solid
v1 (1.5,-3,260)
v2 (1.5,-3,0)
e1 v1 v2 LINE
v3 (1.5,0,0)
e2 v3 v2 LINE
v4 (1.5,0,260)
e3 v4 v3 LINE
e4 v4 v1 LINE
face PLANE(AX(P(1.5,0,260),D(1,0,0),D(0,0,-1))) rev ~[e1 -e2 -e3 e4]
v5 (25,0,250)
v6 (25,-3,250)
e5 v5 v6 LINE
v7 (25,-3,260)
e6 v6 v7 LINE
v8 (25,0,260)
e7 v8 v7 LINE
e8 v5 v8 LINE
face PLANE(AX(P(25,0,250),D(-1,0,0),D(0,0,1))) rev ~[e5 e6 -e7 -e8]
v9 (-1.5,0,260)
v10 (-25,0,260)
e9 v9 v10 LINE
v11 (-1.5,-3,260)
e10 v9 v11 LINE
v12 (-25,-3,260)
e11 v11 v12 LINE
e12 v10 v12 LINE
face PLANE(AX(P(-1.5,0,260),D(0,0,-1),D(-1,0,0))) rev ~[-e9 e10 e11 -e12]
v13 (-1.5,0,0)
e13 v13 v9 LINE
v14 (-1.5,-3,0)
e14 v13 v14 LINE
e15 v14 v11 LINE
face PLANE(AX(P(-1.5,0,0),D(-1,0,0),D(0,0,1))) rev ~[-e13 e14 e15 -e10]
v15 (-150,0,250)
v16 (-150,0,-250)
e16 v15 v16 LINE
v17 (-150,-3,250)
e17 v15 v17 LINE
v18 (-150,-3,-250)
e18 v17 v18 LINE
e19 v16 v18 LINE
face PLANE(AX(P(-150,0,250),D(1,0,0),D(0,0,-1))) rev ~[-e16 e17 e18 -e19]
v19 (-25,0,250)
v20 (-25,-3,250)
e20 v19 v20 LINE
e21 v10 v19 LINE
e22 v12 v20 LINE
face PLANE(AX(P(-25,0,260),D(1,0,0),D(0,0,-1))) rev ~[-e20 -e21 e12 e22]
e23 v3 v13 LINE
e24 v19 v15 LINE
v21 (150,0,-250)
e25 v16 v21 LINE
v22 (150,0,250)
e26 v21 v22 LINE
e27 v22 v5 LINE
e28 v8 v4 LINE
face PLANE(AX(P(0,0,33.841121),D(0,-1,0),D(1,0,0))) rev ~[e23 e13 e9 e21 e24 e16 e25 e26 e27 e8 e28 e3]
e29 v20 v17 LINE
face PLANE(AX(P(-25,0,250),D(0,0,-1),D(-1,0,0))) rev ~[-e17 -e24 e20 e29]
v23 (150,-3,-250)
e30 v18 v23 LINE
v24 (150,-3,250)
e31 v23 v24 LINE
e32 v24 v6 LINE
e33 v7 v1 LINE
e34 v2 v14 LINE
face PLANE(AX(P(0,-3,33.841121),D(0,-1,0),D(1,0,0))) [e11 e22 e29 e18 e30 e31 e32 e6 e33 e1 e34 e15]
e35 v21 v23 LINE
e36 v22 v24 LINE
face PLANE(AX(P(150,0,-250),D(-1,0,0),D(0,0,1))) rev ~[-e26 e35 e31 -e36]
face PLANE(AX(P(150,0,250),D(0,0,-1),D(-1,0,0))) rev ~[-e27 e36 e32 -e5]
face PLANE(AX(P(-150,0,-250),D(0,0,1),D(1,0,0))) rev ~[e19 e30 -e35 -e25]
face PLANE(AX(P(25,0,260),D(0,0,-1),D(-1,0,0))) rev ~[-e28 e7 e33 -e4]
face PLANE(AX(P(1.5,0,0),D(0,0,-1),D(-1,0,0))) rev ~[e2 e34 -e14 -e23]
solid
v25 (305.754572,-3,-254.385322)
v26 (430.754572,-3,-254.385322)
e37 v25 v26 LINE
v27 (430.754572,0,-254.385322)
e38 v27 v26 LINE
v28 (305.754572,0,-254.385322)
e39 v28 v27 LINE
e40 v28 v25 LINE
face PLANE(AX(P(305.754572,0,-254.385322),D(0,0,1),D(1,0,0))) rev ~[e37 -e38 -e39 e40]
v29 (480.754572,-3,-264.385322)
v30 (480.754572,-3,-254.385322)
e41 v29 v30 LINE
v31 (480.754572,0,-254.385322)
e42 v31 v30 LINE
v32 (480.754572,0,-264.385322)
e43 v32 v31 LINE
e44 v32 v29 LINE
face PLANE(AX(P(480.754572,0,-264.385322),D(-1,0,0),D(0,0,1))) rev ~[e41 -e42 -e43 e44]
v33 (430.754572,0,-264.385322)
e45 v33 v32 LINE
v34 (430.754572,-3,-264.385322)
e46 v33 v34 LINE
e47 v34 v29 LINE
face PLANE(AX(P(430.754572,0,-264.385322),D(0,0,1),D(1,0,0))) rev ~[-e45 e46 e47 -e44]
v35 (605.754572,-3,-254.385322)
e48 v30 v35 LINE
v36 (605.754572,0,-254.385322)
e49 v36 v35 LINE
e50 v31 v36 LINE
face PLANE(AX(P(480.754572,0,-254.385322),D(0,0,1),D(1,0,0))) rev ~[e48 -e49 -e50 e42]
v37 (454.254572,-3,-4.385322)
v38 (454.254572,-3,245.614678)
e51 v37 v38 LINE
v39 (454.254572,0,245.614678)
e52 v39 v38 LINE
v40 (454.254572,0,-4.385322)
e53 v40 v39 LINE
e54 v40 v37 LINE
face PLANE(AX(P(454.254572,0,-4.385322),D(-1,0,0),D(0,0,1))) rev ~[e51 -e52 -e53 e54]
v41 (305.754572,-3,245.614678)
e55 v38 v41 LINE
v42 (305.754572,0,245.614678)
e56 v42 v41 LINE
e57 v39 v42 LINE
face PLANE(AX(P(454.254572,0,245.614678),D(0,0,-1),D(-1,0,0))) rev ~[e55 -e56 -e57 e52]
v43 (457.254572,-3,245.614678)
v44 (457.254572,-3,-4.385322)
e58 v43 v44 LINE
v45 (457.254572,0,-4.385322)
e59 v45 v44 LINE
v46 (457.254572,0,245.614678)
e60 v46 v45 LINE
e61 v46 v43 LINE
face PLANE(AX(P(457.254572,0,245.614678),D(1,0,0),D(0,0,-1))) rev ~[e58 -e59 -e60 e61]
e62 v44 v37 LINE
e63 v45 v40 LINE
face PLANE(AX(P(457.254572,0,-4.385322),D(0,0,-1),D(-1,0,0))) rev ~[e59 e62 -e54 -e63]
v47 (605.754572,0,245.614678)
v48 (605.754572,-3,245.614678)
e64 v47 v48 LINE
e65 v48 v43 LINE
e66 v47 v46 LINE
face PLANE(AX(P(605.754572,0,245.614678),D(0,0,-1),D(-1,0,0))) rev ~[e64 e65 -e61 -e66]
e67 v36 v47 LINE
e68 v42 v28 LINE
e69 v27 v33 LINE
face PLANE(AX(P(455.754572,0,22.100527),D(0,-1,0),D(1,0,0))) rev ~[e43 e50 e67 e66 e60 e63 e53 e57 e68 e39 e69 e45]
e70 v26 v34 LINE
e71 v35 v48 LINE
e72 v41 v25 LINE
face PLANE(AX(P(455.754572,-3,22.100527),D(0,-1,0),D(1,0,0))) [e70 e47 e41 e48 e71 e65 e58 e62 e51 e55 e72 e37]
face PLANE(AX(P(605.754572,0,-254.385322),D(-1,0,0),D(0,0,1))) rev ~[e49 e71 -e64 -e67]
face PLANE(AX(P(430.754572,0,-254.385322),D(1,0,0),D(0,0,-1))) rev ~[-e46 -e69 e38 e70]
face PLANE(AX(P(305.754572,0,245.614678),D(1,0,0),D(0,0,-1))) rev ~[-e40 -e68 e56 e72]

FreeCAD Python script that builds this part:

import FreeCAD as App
import Part
import Sketcher
from FreeCAD import Vector
Q = App.Units.Quantity

doc = App.newDocument("Part")
body = doc.addObject("PartDesign::Body", "Body")
body.AllowCompound = True

# Sketch on XZ plane
sketch1 = body.newObject("Sketcher::SketchObject", "Sketch")
sketch1.AttachmentSupport = (doc.getObject("XZ_Plane"), [""])
sketch1.MapMode = "FlatFace"
sketch1.addGeometry([
    Part.LineSegment(Vector(-150, 250, 0), Vector(-150, -250, 0)),  # 0
    Part.LineSegment(Vector(-150, -250, 0), Vector(150, -250, 0)),  # 1
    Part.LineSegment(Vector(150, -250, 0), Vector(150, 250, 0)),  # 2
    Part.LineSegment(Vector(150, 250, 0), Vector(25, 250, 0)),  # 3
    Part.LineSegment(Vector(25, 250, 0), Vector(25, 260, 0)),  # 4
    Part.LineSegment(Vector(25, 260, 0), Vector(1.5, 260, 0)),  # 5
    Part.LineSegment(Vector(1.5, 260, 0), Vector(1.5, 0, 0)),  # 6
    Part.LineSegment(Vector(1.5, 0, 0), Vector(-1.5, 0, 0)),  # 7
    Part.LineSegment(Vector(-1.5, 0, 0), Vector(-1.5, 260, 0)),  # 8
    Part.LineSegment(Vector(-1.5, 260, 0), Vector(-25, 260, 0)),  # 9
    Part.LineSegment(Vector(-25, 260, 0), Vector(-25, 250, 0)),  # 10
    Part.LineSegment(Vector(-25, 250, 0), Vector(-150, 250, 0)),  # 11
    Part.LineSegment(Vector(305.8, 245.6, 0), Vector(305.8, -254.4, 0)),  # 12
    Part.LineSegment(Vector(305.8, -254.4, 0), Vector(430.8, -254.4, 0)),  # 13
    Part.LineSegment(Vector(430.8, -254.4, 0), Vector(430.8, -264.4, 0)),  # 14
    Part.LineSegment(Vector(430.8, -264.4, 0), Vector(480.8, -264.4, 0)),  # 15
    Part.LineSegment(Vector(480.8, -264.4, 0), Vector(480.8, -254.4, 0)),  # 16
    Part.LineSegment(Vector(480.8, -254.4, 0), Vector(605.8, -254.4, 0)),  # 17
    Part.LineSegment(Vector(605.8, -254.4, 0), Vector(605.8, 245.6, 0)),  # 18
    Part.LineSegment(Vector(605.8, 245.6, 0), Vector(457.3, 245.6, 0)),  # 19
    Part.LineSegment(Vector(457.3, 245.6, 0), Vector(457.3, -4.4, 0)),  # 20
    Part.LineSegment(Vector(457.3, -4.4, 0), Vector(454.3, -4.4, 0)),  # 21
    Part.LineSegment(Vector(454.3, -4.4, 0), Vector(454.3, 245.6, 0)),  # 22
    Part.LineSegment(Vector(454.3, 245.6, 0), Vector(305.8, 245.6, 0)),  # 23
], False)
sketch1.addConstraint([
    Sketcher.Constraint("Coincident", 0, 2, 1, 1),
    Sketcher.Constraint("Coincident", 1, 2, 2, 1),
    Sketcher.Constraint("Coincident", 2, 2, 3, 1),
    Sketcher.Constraint("Coincident", 3, 2, 4, 1),
    Sketcher.Constraint("Coincident", 4, 2, 5, 1),
    Sketcher.Constraint("Coincident", 5, 2, 6, 1),
    Sketcher.Constraint("Coincident", 6, 2, 7, 1),
    Sketcher.Constraint("Coincident", 7, 2, 8, 1),
    Sketcher.Constraint("Coincident", 8, 2, 9, 1),
    Sketcher.Constraint("Coincident", 9, 2, 10, 1),
    Sketcher.Constraint("Coincident", 10, 2, 11, 1),
    Sketcher.Constraint("Coincident", 11, 2, 0, 1),
    Sketcher.Constraint("Coincident", 12, 2, 13, 1),
    Sketcher.Constraint("Coincident", 13, 2, 14, 1),
    Sketcher.Constraint("Coincident", 14, 2, 15, 1),
    Sketcher.Constraint("Coincident", 15, 2, 16, 1),
    Sketcher.Constraint("Coincident", 16, 2, 17, 1),
    Sketcher.Constraint("Coincident", 17, 2, 18, 1),
    Sketcher.Constraint("Coincident", 18, 2, 19, 1),
    Sketcher.Constraint("Coincident", 19, 2, 20, 1),
    Sketcher.Constraint("Coincident", 20, 2, 21, 1),
    Sketcher.Constraint("Coincident", 21, 2, 22, 1),
    Sketcher.Constraint("Coincident", 22, 2, 23, 1),
    Sketcher.Constraint("Coincident", 23, 2, 12, 1),
    Sketcher.Constraint("Vertical", 0),
    Sketcher.Constraint("Horizontal", 1),
    Sketcher.Constraint("Vertical", 2),
    Sketcher.Constraint("Horizontal", 3),
    Sketcher.Constraint("Vertical", 4),
    Sketcher.Constraint("Horizontal", 5),
    Sketcher.Constraint("Vertical", 6),
    Sketcher.Constraint("Horizontal", 7),
    Sketcher.Constraint("Vertical", 8),
    Sketcher.Constraint("Horizontal", 9),
    Sketcher.Constraint("Vertical", 10),
    Sketcher.Constraint("Horizontal", 11),
    Sketcher.Constraint("Vertical", 12),
    Sketcher.Constraint("Horizontal", 13),
    Sketcher.Constraint("Vertical", 14),
    Sketcher.Constraint("Horizontal", 15),
    Sketcher.Constraint("Vertical", 16),
    Sketcher.Constraint("Horizontal", 17),
    Sketcher.Constraint("Vertical", 18),
    Sketcher.Constraint("Horizontal", 19),
    Sketcher.Constraint("Vertical", 20),
    Sketcher.Constraint("Horizontal", 21),
    Sketcher.Constraint("Vertical", 22),
    Sketcher.Constraint("Horizontal", 23),
    Sketcher.Constraint("Symmetric", 0, 2, 2, 2, -1, 1),
    Sketcher.Constraint("Symmetric", 6, 2, 7, 2, -1, 1),
    Sketcher.Constraint("Symmetric", 4, 2, 9, 2, -2),
    Sketcher.Constraint("Horizontal", 3, 2, 10, 2),
    Sketcher.Constraint("Horizontal", 13, 2, 16, 2),
    Sketcher.Constraint("Horizontal", 19, 2, 22, 2),
    Sketcher.Constraint("Equal", 11, 13),
    Sketcher.Constraint("Equal", 13, 17),
    Sketcher.Constraint("Equal", 7, 21),
    Sketcher.Constraint("Equal", 19, 23),
    Sketcher.Constraint("Equal", 2, 12),
    Sketcher.Constraint("Equal", 10, 14),
    Sketcher.Constraint("DistanceX", 1, 1, 1, 2, Q("300 mm")),
    Sketcher.Constraint("DistanceX", 3, 2, 3, 1, Q("125 mm")),
    Sketcher.Constraint("DistanceX", 7, 2, 7, 1, Q("3 mm")),
    Sketcher.Constraint("DistanceX", 15, 1, 15, 2, Q("50 mm")),
    Sketcher.Constraint("DistanceY", 0, 2, 0, 1, Q("500 mm")),
    Sketcher.Constraint("DistanceY", 4, 1, 4, 2, Q("10 mm")),
    Sketcher.Constraint("DistanceY", 20, 2, 20, 1, Q("250 mm")),
    Sketcher.Constraint("DistanceX", -1, 1, 12, 2, Q("305.754572 mm")),
    Sketcher.Constraint("DistanceY", 12, 2, -1, 1, Q("254.385322 mm")),
])
pad1 = body.newObject("PartDesign::Pad", "Pad")
pad1.Profile = sketch1
pad1.Length = 3

doc.recompute()
